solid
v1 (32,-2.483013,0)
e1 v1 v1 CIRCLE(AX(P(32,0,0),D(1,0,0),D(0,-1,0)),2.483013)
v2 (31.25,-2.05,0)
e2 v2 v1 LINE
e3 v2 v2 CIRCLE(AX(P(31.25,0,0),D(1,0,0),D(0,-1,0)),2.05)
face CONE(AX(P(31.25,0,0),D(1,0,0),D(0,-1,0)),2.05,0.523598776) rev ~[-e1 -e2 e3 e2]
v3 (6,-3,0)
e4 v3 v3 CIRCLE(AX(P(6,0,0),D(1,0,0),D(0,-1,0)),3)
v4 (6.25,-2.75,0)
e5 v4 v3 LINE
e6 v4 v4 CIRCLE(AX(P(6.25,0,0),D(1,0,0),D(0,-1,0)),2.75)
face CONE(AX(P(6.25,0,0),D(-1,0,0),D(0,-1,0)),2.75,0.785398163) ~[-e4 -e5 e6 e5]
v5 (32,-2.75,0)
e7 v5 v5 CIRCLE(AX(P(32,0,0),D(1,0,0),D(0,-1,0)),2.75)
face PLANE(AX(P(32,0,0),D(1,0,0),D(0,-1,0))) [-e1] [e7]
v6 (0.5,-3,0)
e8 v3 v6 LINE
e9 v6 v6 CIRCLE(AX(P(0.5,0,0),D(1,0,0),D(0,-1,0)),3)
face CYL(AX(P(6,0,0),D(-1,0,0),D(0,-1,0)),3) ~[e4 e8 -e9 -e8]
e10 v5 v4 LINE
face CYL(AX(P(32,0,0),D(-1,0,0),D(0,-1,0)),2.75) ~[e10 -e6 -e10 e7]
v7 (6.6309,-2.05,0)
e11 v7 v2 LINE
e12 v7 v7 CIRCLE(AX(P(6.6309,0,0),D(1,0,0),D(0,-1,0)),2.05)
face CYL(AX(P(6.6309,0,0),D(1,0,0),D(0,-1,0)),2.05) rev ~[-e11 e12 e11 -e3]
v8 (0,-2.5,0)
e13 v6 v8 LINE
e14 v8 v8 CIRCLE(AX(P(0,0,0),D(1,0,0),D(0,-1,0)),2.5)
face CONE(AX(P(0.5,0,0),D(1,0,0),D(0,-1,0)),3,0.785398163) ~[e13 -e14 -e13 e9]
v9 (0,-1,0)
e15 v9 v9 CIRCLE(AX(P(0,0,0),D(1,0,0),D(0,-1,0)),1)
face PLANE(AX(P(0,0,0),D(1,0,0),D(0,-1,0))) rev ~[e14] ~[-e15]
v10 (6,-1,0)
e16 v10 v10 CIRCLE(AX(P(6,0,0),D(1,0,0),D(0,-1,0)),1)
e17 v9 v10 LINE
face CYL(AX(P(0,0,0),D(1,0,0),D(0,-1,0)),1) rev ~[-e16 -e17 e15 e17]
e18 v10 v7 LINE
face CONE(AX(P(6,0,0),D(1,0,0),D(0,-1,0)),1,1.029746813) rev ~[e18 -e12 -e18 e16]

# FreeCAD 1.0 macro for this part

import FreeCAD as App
import Part
import Sketcher
Q = App.Units.Quantity


def edges_at(feature, points):
    """Names of the edges that pass closest to the given points."""
    edges = feature.Shape.Edges
    near = lambda p: min(range(len(edges)), key=lambda i: edges[i].distToShape(Part.Vertex(*p))[0])
    return sorted({f"Edge{near(p) + 1}" for p in points})


def add_polygon(sketch, points):
    """Adds a closed chain of lines whose ends are joined by coincident constraints."""
    first, n = sketch.GeometryCount, len(points)
    for a, b in zip(points, points[1:] + points[:1]):
        sketch.addGeometry(Part.LineSegment(App.Vector(*a, 0), App.Vector(*b, 0)), False)
    for i in range(n):
        sketch.addConstraint(Sketcher.Constraint("Coincident", first + i, 2, first + (i + 1) % n, 1))

doc = App.newDocument("Part")
body = doc.addObject("PartDesign::Body", "Body")

# Sketch on XY plane
sketch1 = doc.addObject("Sketcher::SketchObject", "Sketch")
body.addObject(sketch1)
sketch1.AttachmentSupport = (doc.XY_Plane, [""])
sketch1.MapMode = "FlatFace"
add_polygon(sketch1, [(0, -1), (0, -2.5), (0.5, -3), (6, -3), (6.25, -2.75), (32, -2.75), (32, -2.05), (6.63, -2.05), (6, -1)])  # lines 0-8
sketch1.addConstraint(Sketcher.Constraint("Vertical", 0))
sketch1.addConstraint(Sketcher.Constraint("Horizontal", 2))
sketch1.addConstraint(Sketcher.Constraint("Horizontal", 4))
sketch1.addConstraint(Sketcher.Constraint("Vertical", 5))
sketch1.addConstraint(Sketcher.Constraint("Horizontal", 6))
sketch1.addConstraint(Sketcher.Constraint("Horizontal", 8))
sketch1.addConstraint(Sketcher.Constraint("PointOnObject", 0, 2, -2))
sketch1.addConstraint(Sketcher.Constraint("Perpendicular", 1, 3))
sketch1.addConstraint(Sketcher.Constraint("Vertical", 2, 2, 7, 2))
sketch1.addConstraint(Sketcher.Constraint("DistanceX", 8, 2, 8, 1, 6.0))
sketch1.addConstraint(Sketcher.Constraint("Angle", 1, Q("-45 deg")))
sketch1.addConstraint(Sketcher.Constraint("DistanceX", 2, 1, 2, 2, 5.5))
sketch1.addConstraint(Sketcher.Constraint("DistanceX", 2, 2, 4, 2, 26.0))
sketch1.addConstraint(Sketcher.Constraint("DistanceY", 2, 2, 7, 2, 2.0))
sketch1.addConstraint(Sketcher.Constraint("Angle", 7, Q("120.9999 deg")))
sketch1.addConstraint(Sketcher.Constraint("DistanceY", 5, 1, 5, 2, 0.7))
sketch1.addConstraint(Sketcher.Constraint("DistanceY", 1, 2, -1, 1, 3.0))
sketch1.addConstraint(Sketcher.Constraint("DistanceX", 4, 1, 4, 2, 25.75))
revolution = doc.addObject("PartDesign::Revolution", "Revolution")
body.addObject(revolution)
revolution.Profile = sketch1
revolution.ReferenceAxis = (sketch1, ["H_Axis"])
revolution.Angle = 360
doc.recompute()

chamfer = doc.addObject("PartDesign::Chamfer", "Chamfer")
body.addObject(chamfer)
chamfer.Base = (revolution, edges_at(revolution, [(32, 2.05, 0)]))
chamfer.ChamferType = "Distance and Angle"
chamfer.Size = 0.75
chamfer.Angle = 30
chamfer.FlipDirection = True

doc.recompute()
